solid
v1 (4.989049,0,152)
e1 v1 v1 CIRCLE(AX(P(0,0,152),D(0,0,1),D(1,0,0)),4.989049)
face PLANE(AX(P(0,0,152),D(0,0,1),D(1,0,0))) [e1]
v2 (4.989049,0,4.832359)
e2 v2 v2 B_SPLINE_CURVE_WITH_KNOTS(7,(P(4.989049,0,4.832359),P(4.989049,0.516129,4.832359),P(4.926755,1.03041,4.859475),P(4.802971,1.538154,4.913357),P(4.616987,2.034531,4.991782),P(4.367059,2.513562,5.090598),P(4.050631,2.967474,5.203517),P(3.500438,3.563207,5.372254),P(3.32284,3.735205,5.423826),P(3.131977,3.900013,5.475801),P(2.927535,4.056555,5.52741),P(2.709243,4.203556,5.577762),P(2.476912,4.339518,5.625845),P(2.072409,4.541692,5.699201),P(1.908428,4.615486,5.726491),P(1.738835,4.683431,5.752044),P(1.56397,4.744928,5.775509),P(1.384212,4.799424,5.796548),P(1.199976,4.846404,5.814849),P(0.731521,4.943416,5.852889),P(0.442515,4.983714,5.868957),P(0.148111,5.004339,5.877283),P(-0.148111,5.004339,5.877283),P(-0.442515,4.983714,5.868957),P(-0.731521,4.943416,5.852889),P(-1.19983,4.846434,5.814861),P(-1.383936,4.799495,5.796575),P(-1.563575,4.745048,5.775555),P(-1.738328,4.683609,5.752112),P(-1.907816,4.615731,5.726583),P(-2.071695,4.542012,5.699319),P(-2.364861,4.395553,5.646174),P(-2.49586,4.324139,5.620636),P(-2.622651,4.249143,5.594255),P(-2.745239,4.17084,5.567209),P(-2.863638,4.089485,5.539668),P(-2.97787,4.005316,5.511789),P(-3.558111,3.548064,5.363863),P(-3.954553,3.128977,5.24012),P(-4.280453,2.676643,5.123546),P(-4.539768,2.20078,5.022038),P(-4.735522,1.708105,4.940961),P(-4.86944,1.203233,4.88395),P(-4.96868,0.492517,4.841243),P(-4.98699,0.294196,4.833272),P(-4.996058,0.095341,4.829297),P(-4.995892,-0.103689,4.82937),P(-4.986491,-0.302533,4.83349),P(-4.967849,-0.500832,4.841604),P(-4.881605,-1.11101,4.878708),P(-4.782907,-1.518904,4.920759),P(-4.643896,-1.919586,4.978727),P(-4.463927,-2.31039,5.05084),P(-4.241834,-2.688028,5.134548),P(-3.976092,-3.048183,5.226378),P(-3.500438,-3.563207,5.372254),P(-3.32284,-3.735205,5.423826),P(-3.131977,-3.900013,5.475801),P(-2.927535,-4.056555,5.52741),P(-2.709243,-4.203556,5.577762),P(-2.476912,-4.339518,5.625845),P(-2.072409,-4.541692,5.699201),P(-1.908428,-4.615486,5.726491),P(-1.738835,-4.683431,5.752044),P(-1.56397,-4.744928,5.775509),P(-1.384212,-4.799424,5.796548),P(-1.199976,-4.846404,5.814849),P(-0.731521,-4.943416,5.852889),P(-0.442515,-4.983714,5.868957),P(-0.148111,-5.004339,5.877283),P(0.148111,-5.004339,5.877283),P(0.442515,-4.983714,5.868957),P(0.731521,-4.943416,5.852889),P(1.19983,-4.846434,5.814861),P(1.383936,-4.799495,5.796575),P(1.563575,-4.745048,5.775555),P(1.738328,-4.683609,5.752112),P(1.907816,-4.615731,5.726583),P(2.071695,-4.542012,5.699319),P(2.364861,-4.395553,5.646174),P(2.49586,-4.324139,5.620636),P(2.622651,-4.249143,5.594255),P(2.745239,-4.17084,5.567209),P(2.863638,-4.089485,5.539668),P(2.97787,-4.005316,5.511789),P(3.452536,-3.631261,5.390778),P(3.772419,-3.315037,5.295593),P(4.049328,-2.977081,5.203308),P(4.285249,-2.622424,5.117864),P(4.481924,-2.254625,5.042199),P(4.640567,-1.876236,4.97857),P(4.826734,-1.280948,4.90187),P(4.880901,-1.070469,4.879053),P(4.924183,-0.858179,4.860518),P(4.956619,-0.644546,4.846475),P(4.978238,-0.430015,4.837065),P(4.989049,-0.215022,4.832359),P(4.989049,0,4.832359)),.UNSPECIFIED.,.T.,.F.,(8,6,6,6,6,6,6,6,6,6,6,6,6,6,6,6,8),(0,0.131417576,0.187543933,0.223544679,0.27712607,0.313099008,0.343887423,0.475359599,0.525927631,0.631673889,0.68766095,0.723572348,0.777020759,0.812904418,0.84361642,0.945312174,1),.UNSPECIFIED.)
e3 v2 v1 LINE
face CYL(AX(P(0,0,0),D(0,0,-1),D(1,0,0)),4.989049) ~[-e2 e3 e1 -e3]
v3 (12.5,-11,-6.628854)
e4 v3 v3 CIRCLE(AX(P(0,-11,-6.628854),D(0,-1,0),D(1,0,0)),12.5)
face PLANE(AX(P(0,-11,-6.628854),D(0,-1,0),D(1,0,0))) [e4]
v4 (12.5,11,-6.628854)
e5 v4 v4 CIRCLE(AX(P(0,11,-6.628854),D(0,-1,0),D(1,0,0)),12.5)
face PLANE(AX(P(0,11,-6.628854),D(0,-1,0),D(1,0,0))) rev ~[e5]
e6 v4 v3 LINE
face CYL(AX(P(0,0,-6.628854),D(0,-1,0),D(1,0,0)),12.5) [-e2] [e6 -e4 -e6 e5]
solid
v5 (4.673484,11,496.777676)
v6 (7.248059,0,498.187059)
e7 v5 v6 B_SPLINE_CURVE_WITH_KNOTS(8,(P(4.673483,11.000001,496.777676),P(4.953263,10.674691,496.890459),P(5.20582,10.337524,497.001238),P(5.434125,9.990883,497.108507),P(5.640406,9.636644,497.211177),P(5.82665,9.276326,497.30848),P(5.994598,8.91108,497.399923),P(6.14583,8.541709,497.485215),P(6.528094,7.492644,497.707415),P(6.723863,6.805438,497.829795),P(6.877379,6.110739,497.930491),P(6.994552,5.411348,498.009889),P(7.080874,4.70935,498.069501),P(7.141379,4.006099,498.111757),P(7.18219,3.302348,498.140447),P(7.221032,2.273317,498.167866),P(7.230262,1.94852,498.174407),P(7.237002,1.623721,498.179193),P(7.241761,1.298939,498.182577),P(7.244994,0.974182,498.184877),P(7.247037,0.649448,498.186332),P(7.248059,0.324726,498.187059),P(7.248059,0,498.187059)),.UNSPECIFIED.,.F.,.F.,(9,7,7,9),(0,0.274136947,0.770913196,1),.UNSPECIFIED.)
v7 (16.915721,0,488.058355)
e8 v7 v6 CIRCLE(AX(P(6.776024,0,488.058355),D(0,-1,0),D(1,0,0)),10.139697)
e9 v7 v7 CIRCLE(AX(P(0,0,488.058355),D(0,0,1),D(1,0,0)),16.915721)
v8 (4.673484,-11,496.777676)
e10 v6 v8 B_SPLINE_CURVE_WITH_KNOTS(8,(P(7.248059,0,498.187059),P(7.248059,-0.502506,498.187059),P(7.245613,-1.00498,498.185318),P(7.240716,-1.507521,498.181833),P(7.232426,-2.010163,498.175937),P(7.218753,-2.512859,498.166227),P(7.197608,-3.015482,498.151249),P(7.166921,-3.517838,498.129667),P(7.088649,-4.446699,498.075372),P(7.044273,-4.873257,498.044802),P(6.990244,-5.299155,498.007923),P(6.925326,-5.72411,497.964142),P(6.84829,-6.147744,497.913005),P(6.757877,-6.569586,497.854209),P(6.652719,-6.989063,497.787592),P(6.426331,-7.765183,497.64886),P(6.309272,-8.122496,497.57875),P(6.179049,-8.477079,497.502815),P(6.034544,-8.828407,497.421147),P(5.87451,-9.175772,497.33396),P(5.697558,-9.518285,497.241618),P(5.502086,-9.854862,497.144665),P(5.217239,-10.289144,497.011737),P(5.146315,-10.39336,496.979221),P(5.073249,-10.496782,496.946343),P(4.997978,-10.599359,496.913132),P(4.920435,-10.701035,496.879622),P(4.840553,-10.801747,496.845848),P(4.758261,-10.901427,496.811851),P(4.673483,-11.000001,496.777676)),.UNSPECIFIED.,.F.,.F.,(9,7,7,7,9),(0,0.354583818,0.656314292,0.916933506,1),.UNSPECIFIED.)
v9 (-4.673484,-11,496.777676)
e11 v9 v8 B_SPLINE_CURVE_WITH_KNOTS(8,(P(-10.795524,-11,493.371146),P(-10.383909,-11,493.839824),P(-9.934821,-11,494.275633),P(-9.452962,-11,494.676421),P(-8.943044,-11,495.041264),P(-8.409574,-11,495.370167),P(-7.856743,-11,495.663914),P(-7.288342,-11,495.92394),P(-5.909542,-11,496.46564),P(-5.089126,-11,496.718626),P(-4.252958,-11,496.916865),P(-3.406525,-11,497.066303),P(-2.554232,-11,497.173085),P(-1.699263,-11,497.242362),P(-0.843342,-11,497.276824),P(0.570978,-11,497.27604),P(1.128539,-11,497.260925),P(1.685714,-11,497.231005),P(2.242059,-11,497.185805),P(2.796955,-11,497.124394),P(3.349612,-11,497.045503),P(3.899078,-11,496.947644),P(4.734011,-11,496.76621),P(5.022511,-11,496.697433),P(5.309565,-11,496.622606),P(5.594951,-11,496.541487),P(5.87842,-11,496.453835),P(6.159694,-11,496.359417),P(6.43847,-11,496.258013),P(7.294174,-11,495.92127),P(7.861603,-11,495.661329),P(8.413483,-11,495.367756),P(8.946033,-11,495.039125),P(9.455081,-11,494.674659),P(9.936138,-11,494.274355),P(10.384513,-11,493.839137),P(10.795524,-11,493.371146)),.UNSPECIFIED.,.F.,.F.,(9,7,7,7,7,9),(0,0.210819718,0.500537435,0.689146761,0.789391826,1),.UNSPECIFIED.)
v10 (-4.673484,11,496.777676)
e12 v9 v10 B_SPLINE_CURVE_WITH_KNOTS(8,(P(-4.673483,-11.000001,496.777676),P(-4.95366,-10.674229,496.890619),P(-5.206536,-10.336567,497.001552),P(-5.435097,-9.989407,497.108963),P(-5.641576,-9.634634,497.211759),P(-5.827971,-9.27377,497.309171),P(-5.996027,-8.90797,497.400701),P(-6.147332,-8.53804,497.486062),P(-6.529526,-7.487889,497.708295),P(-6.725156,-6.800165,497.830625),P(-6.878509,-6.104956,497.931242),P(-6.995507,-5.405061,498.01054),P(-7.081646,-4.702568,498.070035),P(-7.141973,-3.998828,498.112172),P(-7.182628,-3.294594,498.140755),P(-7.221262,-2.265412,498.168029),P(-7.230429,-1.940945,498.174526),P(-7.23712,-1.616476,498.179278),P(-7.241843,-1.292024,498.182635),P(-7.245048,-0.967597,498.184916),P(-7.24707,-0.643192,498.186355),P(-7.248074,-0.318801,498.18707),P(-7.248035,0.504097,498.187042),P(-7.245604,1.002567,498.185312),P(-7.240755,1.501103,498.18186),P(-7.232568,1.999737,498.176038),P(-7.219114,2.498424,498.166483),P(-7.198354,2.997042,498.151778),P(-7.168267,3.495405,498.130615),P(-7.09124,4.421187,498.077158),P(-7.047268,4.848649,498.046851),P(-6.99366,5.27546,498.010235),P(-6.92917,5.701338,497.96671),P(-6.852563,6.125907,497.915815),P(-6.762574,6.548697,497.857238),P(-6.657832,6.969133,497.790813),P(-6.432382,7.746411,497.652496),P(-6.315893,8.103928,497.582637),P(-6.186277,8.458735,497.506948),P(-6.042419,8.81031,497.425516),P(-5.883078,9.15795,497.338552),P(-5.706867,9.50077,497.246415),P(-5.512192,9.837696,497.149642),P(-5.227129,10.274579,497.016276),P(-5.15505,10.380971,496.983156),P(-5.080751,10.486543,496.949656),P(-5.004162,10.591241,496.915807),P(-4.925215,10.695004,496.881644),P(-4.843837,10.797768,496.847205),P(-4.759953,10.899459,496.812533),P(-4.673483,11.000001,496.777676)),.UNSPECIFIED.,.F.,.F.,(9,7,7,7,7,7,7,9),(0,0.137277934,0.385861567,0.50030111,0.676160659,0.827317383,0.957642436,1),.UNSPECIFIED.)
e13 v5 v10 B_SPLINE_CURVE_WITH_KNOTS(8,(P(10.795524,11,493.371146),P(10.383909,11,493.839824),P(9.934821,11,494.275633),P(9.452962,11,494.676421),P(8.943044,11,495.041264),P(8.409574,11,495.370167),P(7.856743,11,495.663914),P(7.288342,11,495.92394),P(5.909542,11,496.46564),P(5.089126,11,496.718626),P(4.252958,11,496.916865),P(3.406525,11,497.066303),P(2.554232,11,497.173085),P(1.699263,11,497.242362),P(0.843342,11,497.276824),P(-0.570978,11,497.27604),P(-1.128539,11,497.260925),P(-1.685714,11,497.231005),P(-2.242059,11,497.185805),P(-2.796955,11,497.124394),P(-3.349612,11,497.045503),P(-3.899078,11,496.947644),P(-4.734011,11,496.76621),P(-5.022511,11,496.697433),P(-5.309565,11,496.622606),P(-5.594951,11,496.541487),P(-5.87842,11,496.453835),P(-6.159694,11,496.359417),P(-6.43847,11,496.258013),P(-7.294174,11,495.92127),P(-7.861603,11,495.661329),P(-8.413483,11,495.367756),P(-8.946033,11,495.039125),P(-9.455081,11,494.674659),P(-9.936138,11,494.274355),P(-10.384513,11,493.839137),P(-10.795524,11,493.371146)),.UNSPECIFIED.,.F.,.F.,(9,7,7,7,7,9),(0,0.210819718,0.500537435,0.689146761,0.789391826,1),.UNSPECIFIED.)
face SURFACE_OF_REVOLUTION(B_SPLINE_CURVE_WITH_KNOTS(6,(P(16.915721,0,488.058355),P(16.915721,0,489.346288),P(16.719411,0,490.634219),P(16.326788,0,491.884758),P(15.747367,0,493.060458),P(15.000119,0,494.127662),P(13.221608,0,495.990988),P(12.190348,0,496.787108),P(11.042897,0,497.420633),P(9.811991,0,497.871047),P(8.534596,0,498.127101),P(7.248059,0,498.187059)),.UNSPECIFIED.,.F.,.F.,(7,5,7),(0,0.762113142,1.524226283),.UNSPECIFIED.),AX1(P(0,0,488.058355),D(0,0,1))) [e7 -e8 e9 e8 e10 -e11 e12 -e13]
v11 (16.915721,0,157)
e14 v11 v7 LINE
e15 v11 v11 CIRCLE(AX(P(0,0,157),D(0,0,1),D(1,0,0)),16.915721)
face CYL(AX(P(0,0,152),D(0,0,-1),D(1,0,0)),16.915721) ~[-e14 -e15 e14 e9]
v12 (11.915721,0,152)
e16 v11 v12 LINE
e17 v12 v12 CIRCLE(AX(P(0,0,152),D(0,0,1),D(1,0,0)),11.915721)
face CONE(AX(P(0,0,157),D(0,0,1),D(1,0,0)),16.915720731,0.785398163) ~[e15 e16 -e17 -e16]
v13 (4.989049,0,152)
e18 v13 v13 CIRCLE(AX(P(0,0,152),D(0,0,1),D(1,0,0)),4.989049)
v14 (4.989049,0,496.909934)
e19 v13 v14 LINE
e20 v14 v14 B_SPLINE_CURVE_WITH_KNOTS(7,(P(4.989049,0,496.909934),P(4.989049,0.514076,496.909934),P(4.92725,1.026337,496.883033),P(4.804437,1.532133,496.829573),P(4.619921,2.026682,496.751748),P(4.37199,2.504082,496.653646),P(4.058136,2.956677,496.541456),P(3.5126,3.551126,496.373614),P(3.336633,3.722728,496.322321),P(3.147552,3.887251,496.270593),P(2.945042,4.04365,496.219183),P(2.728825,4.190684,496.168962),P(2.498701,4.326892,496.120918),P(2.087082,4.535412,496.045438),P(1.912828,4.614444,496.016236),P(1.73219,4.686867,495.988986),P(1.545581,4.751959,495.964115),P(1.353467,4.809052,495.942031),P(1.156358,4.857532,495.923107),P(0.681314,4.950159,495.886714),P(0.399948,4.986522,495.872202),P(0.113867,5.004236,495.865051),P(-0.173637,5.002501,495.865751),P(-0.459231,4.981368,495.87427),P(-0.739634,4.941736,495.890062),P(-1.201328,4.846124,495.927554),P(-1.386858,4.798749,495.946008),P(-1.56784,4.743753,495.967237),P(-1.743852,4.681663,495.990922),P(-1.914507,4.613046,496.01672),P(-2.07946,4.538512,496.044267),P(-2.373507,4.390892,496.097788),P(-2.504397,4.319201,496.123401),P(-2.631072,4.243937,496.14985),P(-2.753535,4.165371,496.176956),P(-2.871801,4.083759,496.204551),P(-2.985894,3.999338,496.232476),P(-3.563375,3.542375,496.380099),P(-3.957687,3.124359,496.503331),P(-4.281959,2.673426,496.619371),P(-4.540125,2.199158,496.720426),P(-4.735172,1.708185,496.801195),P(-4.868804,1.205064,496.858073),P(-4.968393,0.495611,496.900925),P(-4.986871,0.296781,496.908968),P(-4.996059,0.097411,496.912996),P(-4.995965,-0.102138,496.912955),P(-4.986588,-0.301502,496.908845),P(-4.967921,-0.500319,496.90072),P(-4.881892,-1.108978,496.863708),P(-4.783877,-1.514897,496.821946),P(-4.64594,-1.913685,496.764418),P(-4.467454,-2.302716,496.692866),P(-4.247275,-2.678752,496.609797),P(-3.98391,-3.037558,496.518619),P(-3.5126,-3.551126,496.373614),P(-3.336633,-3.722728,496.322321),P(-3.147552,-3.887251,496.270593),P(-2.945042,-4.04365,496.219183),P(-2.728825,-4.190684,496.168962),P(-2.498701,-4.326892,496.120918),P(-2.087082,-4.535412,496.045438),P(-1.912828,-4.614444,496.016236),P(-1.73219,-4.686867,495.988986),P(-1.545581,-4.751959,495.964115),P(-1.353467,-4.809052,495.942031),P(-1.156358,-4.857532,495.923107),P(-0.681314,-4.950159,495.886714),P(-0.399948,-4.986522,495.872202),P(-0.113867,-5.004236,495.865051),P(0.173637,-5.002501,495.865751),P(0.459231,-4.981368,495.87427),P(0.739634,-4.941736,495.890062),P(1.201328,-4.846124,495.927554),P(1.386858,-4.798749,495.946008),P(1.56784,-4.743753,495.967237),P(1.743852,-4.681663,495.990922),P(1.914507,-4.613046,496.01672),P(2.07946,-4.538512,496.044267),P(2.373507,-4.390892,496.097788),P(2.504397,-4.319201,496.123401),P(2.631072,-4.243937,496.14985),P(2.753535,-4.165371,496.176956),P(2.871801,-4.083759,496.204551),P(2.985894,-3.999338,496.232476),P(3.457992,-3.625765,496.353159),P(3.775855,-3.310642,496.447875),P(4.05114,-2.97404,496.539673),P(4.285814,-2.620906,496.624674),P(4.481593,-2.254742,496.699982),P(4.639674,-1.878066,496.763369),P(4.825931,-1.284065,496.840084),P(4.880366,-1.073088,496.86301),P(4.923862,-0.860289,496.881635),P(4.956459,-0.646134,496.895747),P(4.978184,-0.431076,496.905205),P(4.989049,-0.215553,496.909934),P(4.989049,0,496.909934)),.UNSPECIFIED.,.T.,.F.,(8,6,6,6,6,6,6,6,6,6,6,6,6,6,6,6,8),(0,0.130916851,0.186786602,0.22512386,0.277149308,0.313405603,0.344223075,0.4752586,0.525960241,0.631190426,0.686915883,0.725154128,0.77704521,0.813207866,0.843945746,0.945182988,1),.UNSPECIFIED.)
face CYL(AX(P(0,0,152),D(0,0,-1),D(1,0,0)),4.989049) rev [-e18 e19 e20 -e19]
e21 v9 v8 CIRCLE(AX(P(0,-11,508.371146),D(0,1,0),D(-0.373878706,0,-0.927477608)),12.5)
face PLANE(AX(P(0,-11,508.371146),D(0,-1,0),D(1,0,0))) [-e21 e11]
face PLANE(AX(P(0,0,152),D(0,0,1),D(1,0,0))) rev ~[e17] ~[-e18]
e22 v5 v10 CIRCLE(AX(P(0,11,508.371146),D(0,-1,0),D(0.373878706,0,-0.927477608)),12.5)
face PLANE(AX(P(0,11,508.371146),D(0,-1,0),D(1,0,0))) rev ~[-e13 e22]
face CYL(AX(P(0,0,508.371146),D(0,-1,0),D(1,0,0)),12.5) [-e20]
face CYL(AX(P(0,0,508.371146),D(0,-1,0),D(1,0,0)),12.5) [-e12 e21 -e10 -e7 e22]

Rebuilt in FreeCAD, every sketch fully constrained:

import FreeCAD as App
import Part
import Sketcher

V = App.Vector


def edges_at(feature, points):
    """Names of the edges that pass closest to the given points."""
    edges = feature.Shape.Edges
    near = lambda p: min(range(len(edges)), key=lambda i: edges[i].distToShape(Part.Vertex(*p))[0])
    return sorted({f"Edge{near(p) + 1}" for p in points})

doc = App.newDocument("Part")
body = doc.addObject("PartDesign::Body", "Body")

sketch1 = body.newObject("Sketcher::SketchObject", "Sketch")
sketch1.AttachmentSupport = (doc.getObject("XY_Plane"), [""])
sketch1.MapMode = "FlatFace"
sketch1.addGeometry(Part.Circle(V(0, 0, 0), V(0, 0, 1), 5), False)
sketch1.addConstraint([
    Sketcher.Constraint("Coincident", 0, 3, -1, 1),
    Sketcher.Constraint("Diameter", 0, 9.978099),
])
pad1 = body.newObject("PartDesign::Pad", "Pad")
pad1.Profile = sketch1
pad1.Length = 152

sketch2 = body.newObject("Sketcher::SketchObject", "Sketch001")
sketch2.AttachmentSupport = (doc.getObject("XZ_Plane"), [""])
sketch2.MapMode = "FlatFace"
sketch2.addGeometry(Part.Circle(V(0, -7, 0), V(0, 0, 1), 12), False)
sketch2.addConstraint([
    Sketcher.Constraint("PointOnObject", 0, 3, -2),
    Sketcher.Constraint("Diameter", 0, 25.0),
    Sketcher.Constraint("DistanceY", 0, 3, -1, 1, 6.628854),
])
pad2 = body.newObject("PartDesign::Pad", "Pad001")
pad2.Profile = sketch2
pad2.Length = 22
pad2.Midplane = True
body2 = doc.addObject("PartDesign::Body", "Body001")

sketch3 = body2.newObject("Sketcher::SketchObject", "Sketch002")
sketch3.AttachmentSupport = (doc.getObject("XY_Plane001"), [""])
sketch3.MapMode = "FlatFace"
sketch3.AttachmentOffset = App.Placement(V(0, 0, 152), App.Rotation())
sketch3.addGeometry([
    Part.Circle(V(0, 0, 0), V(0, 0, 1), 16.9),
    Part.Circle(V(0, 0, 0), V(0, 0, 1), 5),
], False)
sketch3.addConstraint([
    Sketcher.Constraint("Coincident", 0, 3, -1, 1),
    Sketcher.Constraint("Coincident", 1, 3, -1, 1),
    Sketcher.Constraint("Diameter", 1, 9.978099),
    Sketcher.Constraint("Diameter", 0, 33.831441),
])
pad3 = body2.newObject("PartDesign::Pad", "Pad002")
pad3.Profile = sketch3
pad3.Length = 346.198052
doc.recompute()

fillet = body2.newObject("PartDesign::Fillet", "Fillet")
fillet.Base = (pad3, edges_at(pad3, [(-16.916, 0, 498.198)]))
fillet.Radius = 10.139697
doc.recompute()

chamfer = body2.newObject("PartDesign::Chamfer", "Chamfer")
chamfer.Base = (fillet, edges_at(fillet, [(-16.916, 0, 152)]))
chamfer.Size = 5

sketch4 = body2.newObject("Sketcher::SketchObject", "Sketch003")
sketch4.AttachmentSupport = (doc.getObject("XZ_Plane001"), [""])
sketch4.MapMode = "FlatFace"
sketch4.addGeometry(Part.Circle(V(0, 508, 0), V(0, 0, 1), 12), False)
sketch4.addConstraint([
    Sketcher.Constraint("PointOnObject", 0, 3, -2),
    Sketcher.Constraint("Diameter", 0, 25.0),
    Sketcher.Constraint("DistanceY", -1, 1, 0, 3, 508.371146),
])
pad4 = body2.newObject("PartDesign::Pad", "Pad003")
pad4.Profile = sketch4
pad4.Length = 22
pad4.Midplane = True

doc.recompute()
